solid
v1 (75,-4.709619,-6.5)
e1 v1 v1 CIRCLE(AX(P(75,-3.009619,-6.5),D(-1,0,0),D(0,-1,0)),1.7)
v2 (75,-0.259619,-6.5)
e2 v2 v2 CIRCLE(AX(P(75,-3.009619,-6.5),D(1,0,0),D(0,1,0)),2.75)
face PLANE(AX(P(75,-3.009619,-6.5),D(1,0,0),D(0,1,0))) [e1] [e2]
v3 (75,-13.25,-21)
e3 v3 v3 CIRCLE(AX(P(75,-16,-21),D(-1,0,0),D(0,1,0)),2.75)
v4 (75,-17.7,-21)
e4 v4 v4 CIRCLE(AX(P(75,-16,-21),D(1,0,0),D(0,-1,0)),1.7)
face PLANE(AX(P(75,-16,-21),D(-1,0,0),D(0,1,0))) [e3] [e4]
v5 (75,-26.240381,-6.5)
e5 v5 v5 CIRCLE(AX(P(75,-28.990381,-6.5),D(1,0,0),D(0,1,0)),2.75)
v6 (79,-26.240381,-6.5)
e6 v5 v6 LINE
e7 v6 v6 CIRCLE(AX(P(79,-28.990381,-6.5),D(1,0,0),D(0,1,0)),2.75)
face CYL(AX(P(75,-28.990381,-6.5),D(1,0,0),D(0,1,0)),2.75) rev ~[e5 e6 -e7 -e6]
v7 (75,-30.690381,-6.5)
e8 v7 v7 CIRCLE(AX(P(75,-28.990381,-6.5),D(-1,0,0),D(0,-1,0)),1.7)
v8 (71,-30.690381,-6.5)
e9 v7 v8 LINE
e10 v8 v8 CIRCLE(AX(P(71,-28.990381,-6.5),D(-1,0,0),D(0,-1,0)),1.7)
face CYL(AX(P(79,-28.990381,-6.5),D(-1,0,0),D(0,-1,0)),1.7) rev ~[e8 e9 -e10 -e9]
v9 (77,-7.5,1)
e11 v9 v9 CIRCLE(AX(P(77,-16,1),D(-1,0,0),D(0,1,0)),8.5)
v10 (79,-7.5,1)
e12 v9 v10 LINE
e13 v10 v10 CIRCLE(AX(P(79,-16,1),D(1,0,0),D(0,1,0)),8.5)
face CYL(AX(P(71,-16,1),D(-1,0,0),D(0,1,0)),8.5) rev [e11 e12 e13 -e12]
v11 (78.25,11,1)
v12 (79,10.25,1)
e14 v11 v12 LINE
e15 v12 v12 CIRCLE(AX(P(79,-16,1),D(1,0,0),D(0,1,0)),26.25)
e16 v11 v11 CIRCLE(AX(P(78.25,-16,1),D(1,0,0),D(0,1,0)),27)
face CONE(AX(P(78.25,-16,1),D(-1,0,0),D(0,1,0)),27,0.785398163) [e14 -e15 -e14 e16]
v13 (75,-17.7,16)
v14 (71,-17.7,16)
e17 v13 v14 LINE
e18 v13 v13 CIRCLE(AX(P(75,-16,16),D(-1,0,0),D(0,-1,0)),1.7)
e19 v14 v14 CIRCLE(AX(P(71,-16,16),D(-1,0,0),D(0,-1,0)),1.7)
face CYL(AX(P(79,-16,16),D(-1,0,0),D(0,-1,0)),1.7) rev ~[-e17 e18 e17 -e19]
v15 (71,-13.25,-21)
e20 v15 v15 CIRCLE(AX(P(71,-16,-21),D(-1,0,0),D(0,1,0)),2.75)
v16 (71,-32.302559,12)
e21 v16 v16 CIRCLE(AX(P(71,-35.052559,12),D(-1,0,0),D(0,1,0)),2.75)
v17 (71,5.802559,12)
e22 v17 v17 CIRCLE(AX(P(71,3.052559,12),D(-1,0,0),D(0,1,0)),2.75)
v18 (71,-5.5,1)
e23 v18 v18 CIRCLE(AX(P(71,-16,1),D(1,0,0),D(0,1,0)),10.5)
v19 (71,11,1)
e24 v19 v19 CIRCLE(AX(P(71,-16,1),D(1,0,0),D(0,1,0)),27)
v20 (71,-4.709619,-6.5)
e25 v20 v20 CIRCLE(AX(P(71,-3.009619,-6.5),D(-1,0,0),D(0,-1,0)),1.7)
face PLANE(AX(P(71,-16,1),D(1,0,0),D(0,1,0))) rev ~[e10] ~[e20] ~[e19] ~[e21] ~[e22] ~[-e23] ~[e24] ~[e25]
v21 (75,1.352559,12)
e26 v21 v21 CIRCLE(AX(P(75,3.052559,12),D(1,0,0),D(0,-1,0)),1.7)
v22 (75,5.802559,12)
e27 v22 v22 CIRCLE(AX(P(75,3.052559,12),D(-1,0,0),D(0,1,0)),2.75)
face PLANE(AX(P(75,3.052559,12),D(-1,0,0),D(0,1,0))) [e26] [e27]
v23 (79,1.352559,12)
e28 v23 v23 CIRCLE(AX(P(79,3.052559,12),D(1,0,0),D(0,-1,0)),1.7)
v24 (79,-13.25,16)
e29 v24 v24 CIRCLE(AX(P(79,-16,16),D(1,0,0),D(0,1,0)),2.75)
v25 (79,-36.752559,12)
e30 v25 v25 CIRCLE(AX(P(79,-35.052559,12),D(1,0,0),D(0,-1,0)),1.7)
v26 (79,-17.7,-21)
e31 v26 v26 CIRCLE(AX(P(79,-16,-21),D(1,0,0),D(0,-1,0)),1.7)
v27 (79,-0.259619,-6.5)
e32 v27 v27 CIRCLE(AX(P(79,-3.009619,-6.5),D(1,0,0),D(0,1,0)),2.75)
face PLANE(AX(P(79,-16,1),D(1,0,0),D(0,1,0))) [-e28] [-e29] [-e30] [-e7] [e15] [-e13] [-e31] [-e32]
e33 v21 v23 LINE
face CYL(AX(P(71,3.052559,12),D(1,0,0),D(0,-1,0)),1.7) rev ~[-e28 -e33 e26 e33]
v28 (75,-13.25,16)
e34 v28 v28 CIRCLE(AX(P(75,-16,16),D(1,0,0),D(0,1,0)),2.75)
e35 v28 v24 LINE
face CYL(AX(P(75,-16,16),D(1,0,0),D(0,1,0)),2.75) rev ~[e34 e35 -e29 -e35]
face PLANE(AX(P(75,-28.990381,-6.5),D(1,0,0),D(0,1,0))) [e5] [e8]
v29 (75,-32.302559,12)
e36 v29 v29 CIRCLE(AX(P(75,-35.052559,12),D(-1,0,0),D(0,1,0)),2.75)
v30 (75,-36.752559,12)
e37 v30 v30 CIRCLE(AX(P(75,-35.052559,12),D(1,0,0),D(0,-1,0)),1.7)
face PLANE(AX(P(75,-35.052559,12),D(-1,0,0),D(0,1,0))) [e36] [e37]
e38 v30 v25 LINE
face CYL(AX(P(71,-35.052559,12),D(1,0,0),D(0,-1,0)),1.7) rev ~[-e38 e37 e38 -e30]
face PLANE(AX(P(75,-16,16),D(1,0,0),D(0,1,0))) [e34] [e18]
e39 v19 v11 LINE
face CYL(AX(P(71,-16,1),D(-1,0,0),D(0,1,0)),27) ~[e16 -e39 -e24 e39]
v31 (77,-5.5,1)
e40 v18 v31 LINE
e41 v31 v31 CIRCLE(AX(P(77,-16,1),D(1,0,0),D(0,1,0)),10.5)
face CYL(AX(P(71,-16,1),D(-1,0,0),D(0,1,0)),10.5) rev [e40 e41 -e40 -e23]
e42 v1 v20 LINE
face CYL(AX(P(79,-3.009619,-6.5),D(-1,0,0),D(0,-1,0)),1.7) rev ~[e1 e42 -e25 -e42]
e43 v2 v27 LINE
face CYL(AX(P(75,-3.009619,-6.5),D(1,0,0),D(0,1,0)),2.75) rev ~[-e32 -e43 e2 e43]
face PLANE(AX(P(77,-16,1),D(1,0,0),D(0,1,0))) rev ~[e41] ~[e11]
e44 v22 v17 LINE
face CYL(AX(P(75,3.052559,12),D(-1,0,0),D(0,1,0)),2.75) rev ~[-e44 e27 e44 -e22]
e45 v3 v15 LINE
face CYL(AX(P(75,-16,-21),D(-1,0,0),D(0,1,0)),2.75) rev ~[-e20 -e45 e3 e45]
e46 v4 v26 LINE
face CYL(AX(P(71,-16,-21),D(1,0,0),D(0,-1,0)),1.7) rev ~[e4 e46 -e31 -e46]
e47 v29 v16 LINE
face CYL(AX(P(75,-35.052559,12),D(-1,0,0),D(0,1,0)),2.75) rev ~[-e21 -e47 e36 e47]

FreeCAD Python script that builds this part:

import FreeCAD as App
import Part
import Sketcher
Q = App.Units.Quantity


def edges_at(feature, points):
    """Names of the edges that pass closest to the given points."""
    edges = feature.Shape.Edges
    near = lambda p: min(range(len(edges)), key=lambda i: edges[i].distToShape(Part.Vertex(*p))[0])
    return sorted({f"Edge{near(p) + 1}" for p in points})

doc = App.newDocument("Part")
body = doc.addObject("PartDesign::Body", "Body")

# Sketch on YZ plane
sketch1 = body.newObject("Sketcher::SketchObject", "Sketch")
sketch1.AttachmentSupport = (doc.getObject("YZ_Plane"), [""])
sketch1.MapMode = "FlatFace"
sketch1.AttachmentOffset = App.Placement(App.Vector(0, 0, 69), App.Rotation())
sketch1.addGeometry(Part.Circle(App.Vector(-10, -6, 0), App.Vector(0, 0, 1), 27), False)
sketch1.addGeometry(Part.Circle(App.Vector(-23, -13.5, 0), App.Vector(0, 0, 1), 1.6), False)
sketch1.addGeometry(Part.Circle(App.Vector(3, -13.5, 0), App.Vector(0, 0, 1), 1.6), False)
sketch1.addGeometry(Part.Circle(App.Vector(-10, -6, 0), App.Vector(0, 0, 1), 8.5), False)
sketch1.addGeometry(Part.Circle(App.Vector(-10, 9, 0), App.Vector(0, 0, 1), 1.6), False)
sketch1.addConstraint(Sketcher.Constraint("Coincident", 3, 3, 0, 3))
sketch1.addConstraint(Sketcher.Constraint("Equal", 1, 2))
sketch1.addConstraint(Sketcher.Constraint("Equal", 2, 4))
sketch1.addConstraint(Sketcher.Constraint("Horizontal", 1, 3, 2, 3))
sketch1.addConstraint(Sketcher.Constraint("Vertical", 3, 3, 4, 3))
sketch1.addConstraint(Sketcher.Constraint("Diameter", 0, Q("54 mm")))
sketch1.addConstraint(Sketcher.Constraint("Diameter", 3, Q("17 mm")))
sketch1.addConstraint(Sketcher.Constraint("Diameter", 1, Q("3.3 mm")))
sketch1.addConstraint(Sketcher.Constraint("DistanceX", 0, 3, -1, 1, Q("10 mm")))
sketch1.addConstraint(Sketcher.Constraint("DistanceY", 0, 3, -1, 1, Q("6 mm")))
sketch1.addConstraint(Sketcher.Constraint("DistanceY", -1, 1, 4, 3, Q("9 mm")))
sketch1.addConstraint(Sketcher.Constraint("DistanceY", 1, 3, -1, 1, Q("13.5 mm")))
sketch1.addConstraint(Sketcher.Constraint("DistanceX", 1, 3, -1, 1, Q("22.990381 mm")))
sketch1.addConstraint(Sketcher.Constraint("DistanceX", -1, 1, 2, 3, Q("2.990381 mm")))
pad1 = body.newObject("PartDesign::Pad", "Pad")
pad1.Profile = sketch1
pad1.Length = 8

# Sketch on YZ plane
sketch2 = body.newObject("Sketcher::SketchObject", "Sketch001")
sketch2.AttachmentSupport = (doc.getObject("YZ_Plane"), [""])
sketch2.MapMode = "FlatFace"
sketch2.AttachmentOffset = App.Placement(App.Vector(0, 0, 69), App.Rotation())
sketch2.addGeometry(Part.Circle(App.Vector(-10, -6, 0), App.Vector(0, 0, 1), 10), False)
sketch2.addConstraint(Sketcher.Constraint("Diameter", 0, Q("21 mm")))
sketch2.addConstraint(Sketcher.Constraint("DistanceX", 0, 3, -1, 1, Q("10 mm")))
sketch2.addConstraint(Sketcher.Constraint("DistanceY", 0, 3, -1, 1, Q("6 mm")))
pocket1 = body.newObject("PartDesign::Pocket", "Pocket")
pocket1.Profile = sketch2
pocket1.Length = 6
pocket1.Reversed = True

# Sketch on YZ plane
sketch3 = body.newObject("Sketcher::SketchObject", "Sketch002")
sketch3.AttachmentSupport = (doc.getObject("YZ_Plane"), [""])
sketch3.MapMode = "FlatFace"
sketch3.AttachmentOffset = App.Placement(App.Vector(0, 0, 69), App.Rotation())
sketch3.addGeometry(Part.Circle(App.Vector(-29.1, 5, 0), App.Vector(0, 0, 1), 1.7), False)
sketch3.addGeometry(Part.Circle(App.Vector(9.1, 5, 0), App.Vector(0, 0, 1), 1.7), False)
sketch3.addGeometry(Part.Circle(App.Vector(-10, -28, 0), App.Vector(0, 0, 1), 1.7), False)
sketch3.addConstraint(Sketcher.Constraint("Equal", 0, 1))
sketch3.addConstraint(Sketcher.Constraint("Equal", 1, 2))
sketch3.addConstraint(Sketcher.Constraint("Horizontal", 0, 3, 1, 3))
sketch3.addConstraint(Sketcher.Constraint("Diameter", 0, Q("3.4 mm")))
sketch3.addConstraint(Sketcher.Constraint("DistanceY", -1, 1, 0, 3, Q("5 mm")))
sketch3.addConstraint(Sketcher.Constraint("DistanceX", 2, 3, -1, 1, Q("10 mm")))
sketch3.addConstraint(Sketcher.Constraint("DistanceY", 2, 3, -1, 1, Q("28 mm")))
sketch3.addConstraint(Sketcher.Constraint("DistanceX", 0, 3, -1, 1, Q("29.052559 mm")))
sketch3.addConstraint(Sketcher.Constraint("DistanceX", -1, 1, 1, 3, Q("9.052559 mm")))
doc.recompute()
hole = body.newObject("PartDesign::Hole", "Hole")
hole.Profile = sketch3
hole.ThreadType = "None"
hole.Diameter = 3.4
hole.DepthType = "ThroughAll"
hole.HoleCutType = "Counterbore"
hole.HoleCutDiameter = 5.5
hole.HoleCutDepth = 4
hole.Reversed = True

# Sketch on YZ plane
sketch4 = body.newObject("Sketcher::SketchObject", "Sketch003")
sketch4.AttachmentSupport = (doc.getObject("YZ_Plane"), [""])
sketch4.MapMode = "FlatFace"
sketch4.AttachmentOffset = App.Placement(App.Vector(0, 0, 77), App.Rotation())
sketch4.addGeometry(Part.Circle(App.Vector(-23, -13.5, 0), App.Vector(0, 0, 1), 1.7), False)
sketch4.addGeometry(Part.Circle(App.Vector(-10, 9, 0), App.Vector(0, 0, 1), 1.7), False)
sketch4.addGeometry(Part.Circle(App.Vector(3, -13.5, 0), App.Vector(0, 0, 1), 1.7), False)
sketch4.addConstraint(Sketcher.Constraint("Equal", 0, 1))
sketch4.addConstraint(Sketcher.Constraint("Equal", 1, 2))
sketch4.addConstraint(Sketcher.Constraint("Horizontal", 0, 3, 2, 3))
sketch4.addConstraint(Sketcher.Constraint("Diameter", 0, Q("3.4 mm")))
sketch4.addConstraint(Sketcher.Constraint("DistanceX", 1, 3, -1, 1, Q("10 mm")))
sketch4.addConstraint(Sketcher.Constraint("DistanceY", -1, 1, 1, 3, Q("9 mm")))
sketch4.addConstraint(Sketcher.Constraint("DistanceY", 0, 3, -1, 1, Q("13.5 mm")))
sketch4.addConstraint(Sketcher.Constraint("DistanceX", 0, 3, -1, 1, Q("22.990381 mm")))
sketch4.addConstraint(Sketcher.Constraint("DistanceX", -1, 1, 2, 3, Q("2.990381 mm")))
doc.recompute()
hole2 = body.newObject("PartDesign::Hole", "Hole001")
hole2.Profile = sketch4
hole2.ThreadType = "None"
hole2.Diameter = 3.4
hole2.DepthType = "ThroughAll"
hole2.HoleCutType = "Counterbore"
hole2.HoleCutDiameter = 5.5
hole2.HoleCutDepth = 4
doc.recompute()

chamfer = body.newObject("PartDesign::Chamfer", "Chamfer")
chamfer.Base = (hole2, edges_at(hole2, [(77, -37, -6)]))
chamfer.Size = 0.75
body2 = doc.addObject("PartDesign::Body", "Body001")
doc.recompute()

body.Placement = App.Placement(App.Vector(2, -6, 7), App.Rotation(App.Vector(0, 0, 1), 0))
boolean = body2.newObject("PartDesign::Boolean", "Boolean")
boolean.Type = "Fuse"
boolean.addObjects([body])

doc.recompute()
